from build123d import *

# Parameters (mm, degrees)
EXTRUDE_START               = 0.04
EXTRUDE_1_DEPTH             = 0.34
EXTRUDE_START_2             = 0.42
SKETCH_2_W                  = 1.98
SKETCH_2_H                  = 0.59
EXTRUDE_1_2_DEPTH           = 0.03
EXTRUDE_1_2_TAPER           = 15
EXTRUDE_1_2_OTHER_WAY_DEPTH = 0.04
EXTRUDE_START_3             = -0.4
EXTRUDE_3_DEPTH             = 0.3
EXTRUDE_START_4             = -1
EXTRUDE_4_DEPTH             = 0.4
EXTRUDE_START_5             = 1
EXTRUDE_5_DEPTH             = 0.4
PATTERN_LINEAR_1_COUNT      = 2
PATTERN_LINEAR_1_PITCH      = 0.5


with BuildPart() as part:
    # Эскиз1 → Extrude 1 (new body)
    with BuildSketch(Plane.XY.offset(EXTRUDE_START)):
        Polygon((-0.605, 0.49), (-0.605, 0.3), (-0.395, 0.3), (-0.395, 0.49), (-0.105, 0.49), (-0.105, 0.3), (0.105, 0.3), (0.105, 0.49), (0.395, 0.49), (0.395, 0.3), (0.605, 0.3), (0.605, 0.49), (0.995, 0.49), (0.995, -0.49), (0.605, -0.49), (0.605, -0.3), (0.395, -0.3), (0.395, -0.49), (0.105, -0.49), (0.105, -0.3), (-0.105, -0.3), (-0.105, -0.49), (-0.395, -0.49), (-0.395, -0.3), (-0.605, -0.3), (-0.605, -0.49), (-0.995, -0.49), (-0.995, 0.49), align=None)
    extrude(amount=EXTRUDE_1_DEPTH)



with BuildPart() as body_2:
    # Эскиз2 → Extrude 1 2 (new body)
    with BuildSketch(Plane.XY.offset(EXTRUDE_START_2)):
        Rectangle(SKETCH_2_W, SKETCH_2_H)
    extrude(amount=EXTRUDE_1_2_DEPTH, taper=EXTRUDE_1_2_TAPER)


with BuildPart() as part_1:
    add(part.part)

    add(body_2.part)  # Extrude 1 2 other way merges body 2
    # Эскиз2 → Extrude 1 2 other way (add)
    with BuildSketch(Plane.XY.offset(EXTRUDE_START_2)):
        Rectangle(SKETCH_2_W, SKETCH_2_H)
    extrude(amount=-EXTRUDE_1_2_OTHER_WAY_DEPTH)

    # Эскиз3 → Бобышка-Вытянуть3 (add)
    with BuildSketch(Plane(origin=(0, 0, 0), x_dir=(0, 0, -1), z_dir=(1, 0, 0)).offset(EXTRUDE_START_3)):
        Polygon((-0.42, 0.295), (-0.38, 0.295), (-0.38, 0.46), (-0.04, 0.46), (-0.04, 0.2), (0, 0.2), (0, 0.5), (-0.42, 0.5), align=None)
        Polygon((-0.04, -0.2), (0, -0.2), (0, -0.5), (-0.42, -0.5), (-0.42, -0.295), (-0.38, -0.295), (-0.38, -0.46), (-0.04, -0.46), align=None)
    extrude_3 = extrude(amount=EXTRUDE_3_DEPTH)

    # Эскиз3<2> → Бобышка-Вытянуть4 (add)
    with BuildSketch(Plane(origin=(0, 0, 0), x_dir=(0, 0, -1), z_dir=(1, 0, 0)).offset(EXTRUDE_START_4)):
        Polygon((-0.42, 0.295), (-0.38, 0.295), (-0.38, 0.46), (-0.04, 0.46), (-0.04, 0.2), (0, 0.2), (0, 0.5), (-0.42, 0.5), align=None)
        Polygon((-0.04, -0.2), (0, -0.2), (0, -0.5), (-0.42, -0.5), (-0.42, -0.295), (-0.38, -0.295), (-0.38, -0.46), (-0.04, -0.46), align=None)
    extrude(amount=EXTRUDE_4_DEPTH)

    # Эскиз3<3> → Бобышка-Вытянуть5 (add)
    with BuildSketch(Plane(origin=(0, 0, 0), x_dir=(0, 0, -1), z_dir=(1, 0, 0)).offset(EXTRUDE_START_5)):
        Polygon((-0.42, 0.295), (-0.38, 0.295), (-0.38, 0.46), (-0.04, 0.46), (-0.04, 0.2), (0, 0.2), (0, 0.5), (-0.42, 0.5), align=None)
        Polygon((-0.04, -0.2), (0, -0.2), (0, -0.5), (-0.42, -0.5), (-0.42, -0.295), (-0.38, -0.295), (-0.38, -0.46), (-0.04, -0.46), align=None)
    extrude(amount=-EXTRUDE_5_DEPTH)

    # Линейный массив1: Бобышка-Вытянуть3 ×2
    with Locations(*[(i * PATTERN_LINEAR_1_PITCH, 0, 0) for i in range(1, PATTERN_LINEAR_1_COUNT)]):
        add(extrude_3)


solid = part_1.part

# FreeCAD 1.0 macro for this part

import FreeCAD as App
import Part
import Sketcher

V = App.Vector
Q = App.Units.Quantity

doc = App.newDocument("Part")
params = doc.addObject("Spreadsheet::Sheet", "Params")
for row, (alias, value) in enumerate([
    ("sketch1_width", "0.39 mm"),
    ("sketch1_width2", "0.21 mm"),
    ("sketch1_width3", "0.29 mm"),
    ("sketch1_height", "0.19 mm"),
    ("sketch1_height2", "0.98 mm"),
    ("pad1_length", "0.34 mm"),
    ("sketch2_width", "1.98 mm"),
    ("sketch2_height", "0.59 mm"),
    ("pad2_length", "0.03 mm"),
    ("pad2_taper", "-15 deg"),
    ("sketch3_width", "1.98 mm"),
    ("sketch3_height", "0.59 mm"),
    ("pad3_length", "0.04 mm"),
    ("sketch4_width", "0.3 mm"),
    ("sketch4_width2", "0.26 mm"),
    ("sketch4_height", "0.04 mm"),
    ("sketch4_height2", "0.34 mm"),
    ("pad4_length", "0.3 mm"),
    ("sketch5_width", "0.3 mm"),
    ("sketch5_width2", "0.26 mm"),
    ("sketch5_height", "0.04 mm"),
    ("sketch5_height2", "0.34 mm"),
    ("pad5_length", "0.4 mm"),
    ("sketch6_width", "0.3 mm"),
    ("sketch6_width2", "0.26 mm"),
    ("sketch6_height", "0.04 mm"),
    ("sketch6_height2", "0.34 mm"),
    ("pad6_length", "0.4 mm"),
    ("linearpattern_pitch", "0.5 mm"),
], start=1):
    params.set(f"A{row}", alias)
    params.set(f"B{row}", "=" + value)
    params.setAlias(f"B{row}", alias)

body = doc.addObject("PartDesign::Body", "Body")

# Sketch on XY plane
sketch1 = doc.addObject("Sketcher::SketchObject", "Sketch")
body.addObject(sketch1)
sketch1.AttachmentSupport = (doc.XY_Plane, [""])
sketch1.MapMode = "FlatFace"
sketch1.AttachmentOffset = App.Placement(V(0, 0, 0.04), App.Rotation())
sketch1.addGeometry([
    Part.LineSegment(V(-0.605, 0.3, 0), V(-0.605, 0.49, 0)),  # 0
    Part.LineSegment(V(-0.605, 0.49, 0), V(-0.995, 0.49, 0)),  # 1
    Part.LineSegment(V(-0.995, 0.49, 0), V(-0.995, -0.49, 0)),  # 2
    Part.LineSegment(V(-0.995, -0.49, 0), V(-0.605, -0.49, 0)),  # 3
    Part.LineSegment(V(-0.605, -0.49, 0), V(-0.605, -0.3, 0)),  # 4
    Part.LineSegment(V(-0.605, -0.3, 0), V(-0.395, -0.3, 0)),  # 5
    Part.LineSegment(V(-0.395, -0.3, 0), V(-0.395, -0.49, 0)),  # 6
    Part.LineSegment(V(-0.395, -0.49, 0), V(-0.105, -0.49, 0)),  # 7
    Part.LineSegment(V(-0.105, -0.49, 0), V(-0.105, -0.3, 0)),  # 8
    Part.LineSegment(V(-0.105, -0.3, 0), V(0.105, -0.3, 0)),  # 9
    Part.LineSegment(V(0.105, -0.3, 0), V(0.105, -0.49, 0)),  # 10
    Part.LineSegment(V(0.105, -0.49, 0), V(0.395, -0.49, 0)),  # 11
    Part.LineSegment(V(0.395, -0.49, 0), V(0.395, -0.3, 0)),  # 12
    Part.LineSegment(V(0.395, -0.3, 0), V(0.605, -0.3, 0)),  # 13
    Part.LineSegment(V(0.605, -0.3, 0), V(0.605, -0.49, 0)),  # 14
    Part.LineSegment(V(0.605, -0.49, 0), V(0.995, -0.49, 0)),  # 15
    Part.LineSegment(V(0.995, -0.49, 0), V(0.995, 0.49, 0)),  # 16
    Part.LineSegment(V(0.995, 0.49, 0), V(0.605, 0.49, 0)),  # 17
    Part.LineSegment(V(0.605, 0.49, 0), V(0.605, 0.3, 0)),  # 18
    Part.LineSegment(V(0.605, 0.3, 0), V(0.395, 0.3, 0)),  # 19
    Part.LineSegment(V(0.395, 0.3, 0), V(0.395, 0.49, 0)),  # 20
    Part.LineSegment(V(0.395, 0.49, 0), V(0.105, 0.49, 0)),  # 21
    Part.LineSegment(V(0.105, 0.49, 0), V(0.105, 0.3, 0)),  # 22
    Part.LineSegment(V(0.105, 0.3, 0), V(-0.105, 0.3, 0)),  # 23
    Part.LineSegment(V(-0.105, 0.3, 0), V(-0.105, 0.49, 0)),  # 24
    Part.LineSegment(V(-0.105, 0.49, 0), V(-0.395, 0.49, 0)),  # 25
    Part.LineSegment(V(-0.395, 0.49, 0), V(-0.395, 0.3, 0)),  # 26
    Part.LineSegment(V(-0.395, 0.3, 0), V(-0.605, 0.3, 0)),  # 27
], False)
sketch1.addConstraint([
    Sketcher.Constraint("Coincident", 0, 2, 1, 1),
    Sketcher.Constraint("Coincident", 1, 2, 2, 1),
    Sketcher.Constraint("Coincident", 2, 2, 3, 1),
    Sketcher.Constraint("Coincident", 3, 2, 4, 1),
    Sketcher.Constraint("Coincident", 4, 2, 5, 1),
    Sketcher.Constraint("Coincident", 5, 2, 6, 1),
    Sketcher.Constraint("Coincident", 6, 2, 7, 1),
    Sketcher.Constraint("Coincident", 7, 2, 8, 1),
    Sketcher.Constraint("Coincident", 8, 2, 9, 1),
    Sketcher.Constraint("Coincident", 9, 2, 10, 1),
    Sketcher.Constraint("Coincident", 10, 2, 11, 1),
    Sketcher.Constraint("Coincident", 11, 2, 12, 1),
    Sketcher.Constraint("Coincident", 12, 2, 13, 1),
    Sketcher.Constraint("Coincident", 13, 2, 14, 1),
    Sketcher.Constraint("Coincident", 14, 2, 15, 1),
    Sketcher.Constraint("Coincident", 15, 2, 16, 1),
    Sketcher.Constraint("Coincident", 16, 2, 17, 1),
    Sketcher.Constraint("Coincident", 17, 2, 18, 1),
    Sketcher.Constraint("Coincident", 18, 2, 19, 1),
    Sketcher.Constraint("Coincident", 19, 2, 20, 1),
    Sketcher.Constraint("Coincident", 20, 2, 21, 1),
    Sketcher.Constraint("Coincident", 21, 2, 22, 1),
    Sketcher.Constraint("Coincident", 22, 2, 23, 1),
    Sketcher.Constraint("Coincident", 23, 2, 24, 1),
    Sketcher.Constraint("Coincident", 24, 2, 25, 1),
    Sketcher.Constraint("Coincident", 25, 2, 26, 1),
    Sketcher.Constraint("Coincident", 26, 2, 27, 1),
    Sketcher.Constraint("Coincident", 27, 2, 0, 1),
    Sketcher.Constraint("Vertical", 0),
    Sketcher.Constraint("Horizontal", 1),
    Sketcher.Constraint("Vertical", 2),
    Sketcher.Constraint("Horizontal", 3),
    Sketcher.Constraint("Vertical", 4),
    Sketcher.Constraint("Horizontal", 5),
    Sketcher.Constraint("Vertical", 6),
    Sketcher.Constraint("Horizontal", 7),
    Sketcher.Constraint("Vertical", 8),
    Sketcher.Constraint("Horizontal", 9),
    Sketcher.Constraint("Vertical", 10),
    Sketcher.Constraint("Horizontal", 11),
    Sketcher.Constraint("Vertical", 12),
    Sketcher.Constraint("Horizontal", 13),
    Sketcher.Constraint("Vertical", 14),
    Sketcher.Constraint("Horizontal", 15),
    Sketcher.Constraint("Vertical", 16),
    Sketcher.Constraint("Horizontal", 17),
    Sketcher.Constraint("Vertical", 18),
    Sketcher.Constraint("Horizontal", 19),
    Sketcher.Constraint("Vertical", 20),
    Sketcher.Constraint("Horizontal", 21),
    Sketcher.Constraint("Vertical", 22),
    Sketcher.Constraint("Horizontal", 23),
    Sketcher.Constraint("Vertical", 24),
    Sketcher.Constraint("Horizontal", 25),
    Sketcher.Constraint("Vertical", 26),
    Sketcher.Constraint("Horizontal", 27),
    Sketcher.Constraint("Symmetric", 0, 2, 14, 2, -1, 1),
    Sketcher.Constraint("Symmetric", 2, 2, 16, 2, -1, 1),
    Sketcher.Constraint("Symmetric", 4, 2, 18, 2, -1, 1),
    Sketcher.Constraint("Symmetric", 6, 2, 20, 2, -1, 1),
    Sketcher.Constraint("Symmetric", 8, 2, 22, 2, -1, 1),
    Sketcher.Constraint("Symmetric", 10, 2, 24, 2, -1, 1),
    Sketcher.Constraint("Symmetric", 12, 2, 26, 2, -1, 1),
    Sketcher.Constraint("Symmetric", 7, 2, 10, 2, -2),
    Sketcher.Constraint("Symmetric", 5, 2, 12, 2, -2),
    Sketcher.Constraint("Symmetric", 3, 2, 14, 2, -2),
    Sketcher.Constraint("Horizontal", 3, 2, 6, 2),
    Sketcher.Constraint("Horizontal", 5, 2, 8, 2),
    Sketcher.Constraint("Equal", 5, 9),
    Sketcher.Constraint("DistanceX", 1, 2, 1, 1, Q("0.39 mm")),
    Sketcher.Constraint("DistanceX", 5, 1, 5, 2, Q("0.21 mm")),
    Sketcher.Constraint("DistanceX", 7, 1, 7, 2, Q("0.29 mm")),
    Sketcher.Constraint("DistanceY", 0, 1, 0, 2, Q("0.19 mm")),
    Sketcher.Constraint("DistanceY", 2, 2, 2, 1, Q("0.98 mm")),
])
sketch1.setExpression("Constraints[69]", "Params.sketch1_width")
sketch1.setExpression("Constraints[70]", "Params.sketch1_width2")
sketch1.setExpression("Constraints[71]", "Params.sketch1_width3")
sketch1.setExpression("Constraints[72]", "Params.sketch1_height")
sketch1.setExpression("Constraints[73]", "Params.sketch1_height2")
pad1 = doc.addObject("PartDesign::Pad", "Pad")
body.addObject(pad1)
pad1.Profile = sketch1
pad1.setExpression("Length", "Params.pad1_length")
body2 = doc.addObject("PartDesign::Body", "Body001")

# Sketch on XY plane
sketch2 = doc.addObject("Sketcher::SketchObject", "Sketch001")
body2.addObject(sketch2)
sketch2.AttachmentSupport = (doc.getObject("XY_Plane001"), [""])
sketch2.MapMode = "FlatFace"
sketch2.AttachmentOffset = App.Placement(V(0, 0, 0.42), App.Rotation())
sketch2.addGeometry([
    Part.LineSegment(V(-0.99, 0.295, 0), V(-0.99, -0.295, 0)),
    Part.LineSegment(V(-0.99, -0.295, 0), V(0.99, -0.295, 0)),
    Part.LineSegment(V(0.99, -0.295, 0), V(0.99, 0.295, 0)),
    Part.LineSegment(V(0.99, 0.295, 0), V(-0.99, 0.295, 0)),
], False)
sketch2.addConstraint([
    Sketcher.Constraint("Coincident", 0, 2, 1, 1),
    Sketcher.Constraint("Coincident", 1, 2, 2, 1),
    Sketcher.Constraint("Coincident", 2, 2, 3, 1),
    Sketcher.Constraint("Coincident", 3, 2, 0, 1),
    Sketcher.Constraint("Vertical", 0),
    Sketcher.Constraint("Horizontal", 1),
    Sketcher.Constraint("Vertical", 2),
    Sketcher.Constraint("Horizontal", 3),
    Sketcher.Constraint("Symmetric", 0, 2, 2, 2, -1, 1),
    Sketcher.Constraint("DistanceX", 1, 1, 1, 2, Q("1.98 mm")),
    Sketcher.Constraint("DistanceY", 0, 2, 0, 1, Q("0.59 mm")),
])
sketch2.setExpression("Constraints[9]", "Params.sketch2_width")
sketch2.setExpression("Constraints[10]", "Params.sketch2_height")
pad2 = doc.addObject("PartDesign::Pad", "Pad001")
body2.addObject(pad2)
pad2.Profile = sketch2
pad2.setExpression("Length", "Params.pad2_length")
pad2.setExpression("TaperAngle", "Params.pad2_taper")
body.AllowCompound = True
doc.recompute()

boolean = doc.addObject("PartDesign::Boolean", "Boolean")
body.addObject(boolean)
boolean.Type = "Fuse"
boolean.addObjects([body2])

# Sketch on XY plane
sketch3 = doc.addObject("Sketcher::SketchObject", "Sketch002")
body.addObject(sketch3)
sketch3.AttachmentSupport = (doc.XY_Plane, [""])
sketch3.MapMode = "FlatFace"
sketch3.AttachmentOffset = App.Placement(V(0, 0, 0.42), App.Rotation())
sketch3.addGeometry([
    Part.LineSegment(V(-0.99, 0.295, 0), V(-0.99, -0.295, 0)),
    Part.LineSegment(V(-0.99, -0.295, 0), V(0.99, -0.295, 0)),
    Part.LineSegment(V(0.99, -0.295, 0), V(0.99, 0.295, 0)),
    Part.LineSegment(V(0.99, 0.295, 0), V(-0.99, 0.295, 0)),
], False)
sketch3.addConstraint([
    Sketcher.Constraint("Coincident", 0, 2, 1, 1),
    Sketcher.Constraint("Coincident", 1, 2, 2, 1),
    Sketcher.Constraint("Coincident", 2, 2, 3, 1),
    Sketcher.Constraint("Coincident", 3, 2, 0, 1),
    Sketcher.Constraint("Vertical", 0),
    Sketcher.Constraint("Horizontal", 1),
    Sketcher.Constraint("Vertical", 2),
    Sketcher.Constraint("Horizontal", 3),
    Sketcher.Constraint("Symmetric", 0, 2, 2, 2, -1, 1),
    Sketcher.Constraint("DistanceX", 1, 1, 1, 2, Q("1.98 mm")),
    Sketcher.Constraint("DistanceY", 0, 2, 0, 1, Q("0.59 mm")),
])
sketch3.setExpression("Constraints[9]", "Params.sketch3_width")
sketch3.setExpression("Constraints[10]", "Params.sketch3_height")
pad3 = doc.addObject("PartDesign::Pad", "Pad002")
body.addObject(pad3)
pad3.Profile = sketch3
pad3.setExpression("Length", "Params.pad3_length")
pad3.Reversed = True

# Sketch on YZ plane
sketch4 = doc.addObject("Sketcher::SketchObject", "Sketch003")
body.addObject(sketch4)
sketch4.AttachmentSupport = (doc.YZ_Plane, [""])
sketch4.MapMode = "FlatFace"
sketch4.AttachmentOffset = App.Placement(V(0, 0, -0.4), App.Rotation())
sketch4.addGeometry([
    Part.LineSegment(V(0.295, 0.42, 0), V(0.295, 0.38, 0)),  # 0
    Part.LineSegment(V(0.295, 0.38, 0), V(0.46, 0.38, 0)),  # 1
    Part.LineSegment(V(0.46, 0.38, 0), V(0.46, 0.04, 0)),  # 2
    Part.LineSegment(V(0.46, 0.04, 0), V(0.2, 0.04, 0)),  # 3
    Part.LineSegment(V(0.2, 0.04, 0), V(0.2, 0, 0)),  # 4
    Part.LineSegment(V(0.2, 0, 0), V(0.5, 0, 0)),  # 5
    Part.LineSegment(V(0.5, 0, 0), V(0.5, 0.42, 0)),  # 6
    Part.LineSegment(V(0.5, 0.42, 0), V(0.295, 0.42, 0)),  # 7
    Part.LineSegment(V(-0.2, 0, 0), V(-0.2, 0.04, 0)),  # 8
    Part.LineSegment(V(-0.2, 0.04, 0), V(-0.46, 0.04, 0)),  # 9
    Part.LineSegment(V(-0.46, 0.04, 0), V(-0.46, 0.38, 0)),  # 10
    Part.LineSegment(V(-0.46, 0.38, 0), V(-0.295, 0.38, 0)),  # 11
    Part.LineSegment(V(-0.295, 0.38, 0), V(-0.295, 0.42, 0)),  # 12
    Part.LineSegment(V(-0.295, 0.42, 0), V(-0.5, 0.42, 0)),  # 13
    Part.LineSegment(V(-0.5, 0.42, 0), V(-0.5, 0, 0)),  # 14
    Part.LineSegment(V(-0.5, 0, 0), V(-0.2, 0, 0)),  # 15
], False)
sketch4.addConstraint([
    Sketcher.Constraint("Coincident", 0, 2, 1, 1),
    Sketcher.Constraint("Coincident", 1, 2, 2, 1),
    Sketcher.Constraint("Coincident", 2, 2, 3, 1),
    Sketcher.Constraint("Coincident", 3, 2, 4, 1),
    Sketcher.Constraint("Coincident", 4, 2, 5, 1),
    Sketcher.Constraint("Coincident", 5, 2, 6, 1),
    Sketcher.Constraint("Coincident", 6, 2, 7, 1),
    Sketcher.Constraint("Coincident", 7, 2, 0, 1),
    Sketcher.Constraint("Coincident", 8, 2, 9, 1),
    Sketcher.Constraint("Coincident", 9, 2, 10, 1),
    Sketcher.Constraint("Coincident", 10, 2, 11, 1),
    Sketcher.Constraint("Coincident", 11, 2, 12, 1),
    Sketcher.Constraint("Coincident", 12, 2, 13, 1),
    Sketcher.Constraint("Coincident", 13, 2, 14, 1),
    Sketcher.Constraint("Coincident", 14, 2, 15, 1),
    Sketcher.Constraint("Coincident", 15, 2, 8, 1),
    Sketcher.Constraint("Vertical", 0),
    Sketcher.Constraint("Horizontal", 1),
    Sketcher.Constraint("Vertical", 2),
    Sketcher.Constraint("Horizontal", 3),
    Sketcher.Constraint("Vertical", 4),
    Sketcher.Constraint("Horizontal", 5),
    Sketcher.Constraint("Vertical", 6),
    Sketcher.Constraint("Horizontal", 7),
    Sketcher.Constraint("Vertical", 8),
    Sketcher.Constraint("Horizontal", 9),
    Sketcher.Constraint("Vertical", 10),
    Sketcher.Constraint("Horizontal", 11),
    Sketcher.Constraint("Vertical", 12),
    Sketcher.Constraint("Horizontal", 13),
    Sketcher.Constraint("Vertical", 14),
    Sketcher.Constraint("Horizontal", 15),
    Sketcher.Constraint("Symmetric", 5, 2, 14, 2, -1, 1),
    Sketcher.Constraint("Symmetric", 3, 2, 8, 2, -2),
    Sketcher.Constraint("Symmetric", 1, 2, 10, 2, -2),
    Sketcher.Constraint("Symmetric", 7, 2, 12, 2, -2),
    Sketcher.Constraint("PointOnObject", 4, 2, -1),
    Sketcher.Constraint("Equal", 0, 4),
    Sketcher.Constraint("DistanceX", 5, 1, 5, 2, Q("0.3 mm")),
    Sketcher.Constraint("DistanceX", 3, 2, 3, 1, Q("0.26 mm")),
    Sketcher.Constraint("DistanceY", 0, 2, 0, 1, Q("0.04 mm")),
    Sketcher.Constraint("DistanceY", 2, 2, 2, 1, Q("0.34 mm")),
    Sketcher.Constraint("DistanceX", -1, 1, 3, 2, Q("0.2 mm")),
    Sketcher.Constraint("DistanceX", 1, 1, 1, 2, Q("0.165 mm")),
])
sketch4.setExpression("Constraints[38]", "Params.sketch4_width")
sketch4.setExpression("Constraints[39]", "Params.sketch4_width2")
sketch4.setExpression("Constraints[40]", "Params.sketch4_height")
sketch4.setExpression("Constraints[41]", "Params.sketch4_height2")
pad4 = doc.addObject("PartDesign::Pad", "Pad003")
body.addObject(pad4)
pad4.Profile = sketch4
pad4.setExpression("Length", "Params.pad4_length")

# Sketch on YZ plane
sketch5 = doc.addObject("Sketcher::SketchObject", "Sketch004")
body.addObject(sketch5)
sketch5.AttachmentSupport = (doc.YZ_Plane, [""])
sketch5.MapMode = "FlatFace"
sketch5.AttachmentOffset = App.Placement(V(0, 0, -1), App.Rotation())
sketch5.addGeometry([
    Part.LineSegment(V(0.295, 0.42, 0), V(0.295, 0.38, 0)),  # 0
    Part.LineSegment(V(0.295, 0.38, 0), V(0.46, 0.38, 0)),  # 1
    Part.LineSegment(V(0.46, 0.38, 0), V(0.46, 0.04, 0)),  # 2
    Part.LineSegment(V(0.46, 0.04, 0), V(0.2, 0.04, 0)),  # 3
    Part.LineSegment(V(0.2, 0.04, 0), V(0.2, 0, 0)),  # 4
    Part.LineSegment(V(0.2, 0, 0), V(0.5, 0, 0)),  # 5
    Part.LineSegment(V(0.5, 0, 0), V(0.5, 0.42, 0)),  # 6
    Part.LineSegment(V(0.5, 0.42, 0), V(0.295, 0.42, 0)),  # 7
    Part.LineSegment(V(-0.2, 0, 0), V(-0.2, 0.04, 0)),  # 8
    Part.LineSegment(V(-0.2, 0.04, 0), V(-0.46, 0.04, 0)),  # 9
    Part.LineSegment(V(-0.46, 0.04, 0), V(-0.46, 0.38, 0)),  # 10
    Part.LineSegment(V(-0.46, 0.38, 0), V(-0.295, 0.38, 0)),  # 11
    Part.LineSegment(V(-0.295, 0.38, 0), V(-0.295, 0.42, 0)),  # 12
    Part.LineSegment(V(-0.295, 0.42, 0), V(-0.5, 0.42, 0)),  # 13
    Part.LineSegment(V(-0.5, 0.42, 0), V(-0.5, 0, 0)),  # 14
    Part.LineSegment(V(-0.5, 0, 0), V(-0.2, 0, 0)),  # 15
], False)
sketch5.addConstraint([
    Sketcher.Constraint("Coincident", 0, 2, 1, 1),
    Sketcher.Constraint("Coincident", 1, 2, 2, 1),
    Sketcher.Constraint("Coincident", 2, 2, 3, 1),
    Sketcher.Constraint("Coincident", 3, 2, 4, 1),
    Sketcher.Constraint("Coincident", 4, 2, 5, 1),
    Sketcher.Constraint("Coincident", 5, 2, 6, 1),
    Sketcher.Constraint("Coincident", 6, 2, 7, 1),
    Sketcher.Constraint("Coincident", 7, 2, 0, 1),
    Sketcher.Constraint("Coincident", 8, 2, 9, 1),
    Sketcher.Constraint("Coincident", 9, 2, 10, 1),
    Sketcher.Constraint("Coincident", 10, 2, 11, 1),
    Sketcher.Constraint("Coincident", 11, 2, 12, 1),
    Sketcher.Constraint("Coincident", 12, 2, 13, 1),
    Sketcher.Constraint("Coincident", 13, 2, 14, 1),
    Sketcher.Constraint("Coincident", 14, 2, 15, 1),
    Sketcher.Constraint("Coincident", 15, 2, 8, 1),
    Sketcher.Constraint("Vertical", 0),
    Sketcher.Constraint("Horizontal", 1),
    Sketcher.Constraint("Vertical", 2),
    Sketcher.Constraint("Horizontal", 3),
    Sketcher.Constraint("Vertical", 4),
    Sketcher.Constraint("Horizontal", 5),
    Sketcher.Constraint("Vertical", 6),
    Sketcher.Constraint("Horizontal", 7),
    Sketcher.Constraint("Vertical", 8),
    Sketcher.Constraint("Horizontal", 9),
    Sketcher.Constraint("Vertical", 10),
    Sketcher.Constraint("Horizontal", 11),
    Sketcher.Constraint("Vertical", 12),
    Sketcher.Constraint("Horizontal", 13),
    Sketcher.Constraint("Vertical", 14),
    Sketcher.Constraint("Horizontal", 15),
    Sketcher.Constraint("Symmetric", 5, 2, 14, 2, -1, 1),
    Sketcher.Constraint("Symmetric", 3, 2, 8, 2, -2),
    Sketcher.Constraint("Symmetric", 1, 2, 10, 2, -2),
    Sketcher.Constraint("Symmetric", 7, 2, 12, 2, -2),
    Sketcher.Constraint("PointOnObject", 4, 2, -1),
    Sketcher.Constraint("Equal", 0, 4),
    Sketcher.Constraint("DistanceX", 5, 1, 5, 2, Q("0.3 mm")),
    Sketcher.Constraint("DistanceX", 3, 2, 3, 1, Q("0.26 mm")),
    Sketcher.Constraint("DistanceY", 0, 2, 0, 1, Q("0.04 mm")),
    Sketcher.Constraint("DistanceY", 2, 2, 2, 1, Q("0.34 mm")),
    Sketcher.Constraint("DistanceX", -1, 1, 3, 2, Q("0.2 mm")),
    Sketcher.Constraint("DistanceX", 1, 1, 1, 2, Q("0.165 mm")),
])
sketch5.setExpression("Constraints[38]", "Params.sketch5_width")
sketch5.setExpression("Constraints[39]", "Params.sketch5_width2")
sketch5.setExpression("Constraints[40]", "Params.sketch5_height")
sketch5.setExpression("Constraints[41]", "Params.sketch5_height2")
pad5 = doc.addObject("PartDesign::Pad", "Pad004")
body.addObject(pad5)
pad5.Profile = sketch5
pad5.setExpression("Length", "Params.pad5_length")

# Sketch on YZ plane
sketch6 = doc.addObject("Sketcher::SketchObject", "Sketch005")
body.addObject(sketch6)
sketch6.AttachmentSupport = (doc.YZ_Plane, [""])
sketch6.MapMode = "FlatFace"
sketch6.AttachmentOffset = App.Placement(V(0, 0, 1), App.Rotation())
sketch6.addGeometry([
    Part.LineSegment(V(0.295, 0.42, 0), V(0.295, 0.38, 0)),  # 0
    Part.LineSegment(V(0.295, 0.38, 0), V(0.46, 0.38, 0)),  # 1
    Part.LineSegment(V(0.46, 0.38, 0), V(0.46, 0.04, 0)),  # 2
    Part.LineSegment(V(0.46, 0.04, 0), V(0.2, 0.04, 0)),  # 3
    Part.LineSegment(V(0.2, 0.04, 0), V(0.2, 0, 0)),  # 4
    Part.LineSegment(V(0.2, 0, 0), V(0.5, 0, 0)),  # 5
    Part.LineSegment(V(0.5, 0, 0), V(0.5, 0.42, 0)),  # 6
    Part.LineSegment(V(0.5, 0.42, 0), V(0.295, 0.42, 0)),  # 7
    Part.LineSegment(V(-0.2, 0, 0), V(-0.2, 0.04, 0)),  # 8
    Part.LineSegment(V(-0.2, 0.04, 0), V(-0.46, 0.04, 0)),  # 9
    Part.LineSegment(V(-0.46, 0.04, 0), V(-0.46, 0.38, 0)),  # 10
    Part.LineSegment(V(-0.46, 0.38, 0), V(-0.295, 0.38, 0)),  # 11
    Part.LineSegment(V(-0.295, 0.38, 0), V(-0.295, 0.42, 0)),  # 12
    Part.LineSegment(V(-0.295, 0.42, 0), V(-0.5, 0.42, 0)),  # 13
    Part.LineSegment(V(-0.5, 0.42, 0), V(-0.5, 0, 0)),  # 14
    Part.LineSegment(V(-0.5, 0, 0), V(-0.2, 0, 0)),  # 15
], False)
sketch6.addConstraint([
    Sketcher.Constraint("Coincident", 0, 2, 1, 1),
    Sketcher.Constraint("Coincident", 1, 2, 2, 1),
    Sketcher.Constraint("Coincident", 2, 2, 3, 1),
    Sketcher.Constraint("Coincident", 3, 2, 4, 1),
    Sketcher.Constraint("Coincident", 4, 2, 5, 1),
    Sketcher.Constraint("Coincident", 5, 2, 6, 1),
    Sketcher.Constraint("Coincident", 6, 2, 7, 1),
    Sketcher.Constraint("Coincident", 7, 2, 0, 1),
    Sketcher.Constraint("Coincident", 8, 2, 9, 1),
    Sketcher.Constraint("Coincident", 9, 2, 10, 1),
    Sketcher.Constraint("Coincident", 10, 2, 11, 1),
    Sketcher.Constraint("Coincident", 11, 2, 12, 1),
    Sketcher.Constraint("Coincident", 12, 2, 13, 1),
    Sketcher.Constraint("Coincident", 13, 2, 14, 1),
    Sketcher.Constraint("Coincident", 14, 2, 15, 1),
    Sketcher.Constraint("Coincident", 15, 2, 8, 1),
    Sketcher.Constraint("Vertical", 0),
    Sketcher.Constraint("Horizontal", 1),
    Sketcher.Constraint("Vertical", 2),
    Sketcher.Constraint("Horizontal", 3),
    Sketcher.Constraint("Vertical", 4),
    Sketcher.Constraint("Horizontal", 5),
    Sketcher.Constraint("Vertical", 6),
    Sketcher.Constraint("Horizontal", 7),
    Sketcher.Constraint("Vertical", 8),
    Sketcher.Constraint("Horizontal", 9),
    Sketcher.Constraint("Vertical", 10),
    Sketcher.Constraint("Horizontal", 11),
    Sketcher.Constraint("Vertical", 12),
    Sketcher.Constraint("Horizontal", 13),
    Sketcher.Constraint("Vertical", 14),
    Sketcher.Constraint("Horizontal", 15),
    Sketcher.Constraint("Symmetric", 5, 2, 14, 2, -1, 1),
    Sketcher.Constraint("Symmetric", 3, 2, 8, 2, -2),
    Sketcher.Constraint("Symmetric", 1, 2, 10, 2, -2),
    Sketcher.Constraint("Symmetric", 7, 2, 12, 2, -2),
    Sketcher.Constraint("PointOnObject", 4, 2, -1),
    Sketcher.Constraint("Equal", 0, 4),
    Sketcher.Constraint("DistanceX", 5, 1, 5, 2, Q("0.3 mm")),
    Sketcher.Constraint("DistanceX", 3, 2, 3, 1, Q("0.26 mm")),
    Sketcher.Constraint("DistanceY", 0, 2, 0, 1, Q("0.04 mm")),
    Sketcher.Constraint("DistanceY", 2, 2, 2, 1, Q("0.34 mm")),
    Sketcher.Constraint("DistanceX", -1, 1, 3, 2, Q("0.2 mm")),
    Sketcher.Constraint("DistanceX", 1, 1, 1, 2, Q("0.165 mm")),
])
sketch6.setExpression("Constraints[38]", "Params.sketch6_width")
sketch6.setExpression("Constraints[39]", "Params.sketch6_width2")
sketch6.setExpression("Constraints[40]", "Params.sketch6_height")
sketch6.setExpression("Constraints[41]", "Params.sketch6_height2")
pad6 = doc.addObject("PartDesign::Pad", "Pad005")
body.addObject(pad6)
pad6.Profile = sketch6
pad6.setExpression("Length", "Params.pad6_length")
pad6.Reversed = True
doc.recompute()

linearpattern = doc.addObject("PartDesign::LinearPattern", "LinearPattern")
body.addObject(linearpattern)
linearpattern.Originals = [pad4]
linearpattern.Direction = (doc.X_Axis, [""])
linearpattern.Mode = "offset"
linearpattern.setExpression("Offset", "Params.linearpattern_pitch")
linearpattern.Occurrences = 2
body.Tip = linearpattern

doc.recompute()
